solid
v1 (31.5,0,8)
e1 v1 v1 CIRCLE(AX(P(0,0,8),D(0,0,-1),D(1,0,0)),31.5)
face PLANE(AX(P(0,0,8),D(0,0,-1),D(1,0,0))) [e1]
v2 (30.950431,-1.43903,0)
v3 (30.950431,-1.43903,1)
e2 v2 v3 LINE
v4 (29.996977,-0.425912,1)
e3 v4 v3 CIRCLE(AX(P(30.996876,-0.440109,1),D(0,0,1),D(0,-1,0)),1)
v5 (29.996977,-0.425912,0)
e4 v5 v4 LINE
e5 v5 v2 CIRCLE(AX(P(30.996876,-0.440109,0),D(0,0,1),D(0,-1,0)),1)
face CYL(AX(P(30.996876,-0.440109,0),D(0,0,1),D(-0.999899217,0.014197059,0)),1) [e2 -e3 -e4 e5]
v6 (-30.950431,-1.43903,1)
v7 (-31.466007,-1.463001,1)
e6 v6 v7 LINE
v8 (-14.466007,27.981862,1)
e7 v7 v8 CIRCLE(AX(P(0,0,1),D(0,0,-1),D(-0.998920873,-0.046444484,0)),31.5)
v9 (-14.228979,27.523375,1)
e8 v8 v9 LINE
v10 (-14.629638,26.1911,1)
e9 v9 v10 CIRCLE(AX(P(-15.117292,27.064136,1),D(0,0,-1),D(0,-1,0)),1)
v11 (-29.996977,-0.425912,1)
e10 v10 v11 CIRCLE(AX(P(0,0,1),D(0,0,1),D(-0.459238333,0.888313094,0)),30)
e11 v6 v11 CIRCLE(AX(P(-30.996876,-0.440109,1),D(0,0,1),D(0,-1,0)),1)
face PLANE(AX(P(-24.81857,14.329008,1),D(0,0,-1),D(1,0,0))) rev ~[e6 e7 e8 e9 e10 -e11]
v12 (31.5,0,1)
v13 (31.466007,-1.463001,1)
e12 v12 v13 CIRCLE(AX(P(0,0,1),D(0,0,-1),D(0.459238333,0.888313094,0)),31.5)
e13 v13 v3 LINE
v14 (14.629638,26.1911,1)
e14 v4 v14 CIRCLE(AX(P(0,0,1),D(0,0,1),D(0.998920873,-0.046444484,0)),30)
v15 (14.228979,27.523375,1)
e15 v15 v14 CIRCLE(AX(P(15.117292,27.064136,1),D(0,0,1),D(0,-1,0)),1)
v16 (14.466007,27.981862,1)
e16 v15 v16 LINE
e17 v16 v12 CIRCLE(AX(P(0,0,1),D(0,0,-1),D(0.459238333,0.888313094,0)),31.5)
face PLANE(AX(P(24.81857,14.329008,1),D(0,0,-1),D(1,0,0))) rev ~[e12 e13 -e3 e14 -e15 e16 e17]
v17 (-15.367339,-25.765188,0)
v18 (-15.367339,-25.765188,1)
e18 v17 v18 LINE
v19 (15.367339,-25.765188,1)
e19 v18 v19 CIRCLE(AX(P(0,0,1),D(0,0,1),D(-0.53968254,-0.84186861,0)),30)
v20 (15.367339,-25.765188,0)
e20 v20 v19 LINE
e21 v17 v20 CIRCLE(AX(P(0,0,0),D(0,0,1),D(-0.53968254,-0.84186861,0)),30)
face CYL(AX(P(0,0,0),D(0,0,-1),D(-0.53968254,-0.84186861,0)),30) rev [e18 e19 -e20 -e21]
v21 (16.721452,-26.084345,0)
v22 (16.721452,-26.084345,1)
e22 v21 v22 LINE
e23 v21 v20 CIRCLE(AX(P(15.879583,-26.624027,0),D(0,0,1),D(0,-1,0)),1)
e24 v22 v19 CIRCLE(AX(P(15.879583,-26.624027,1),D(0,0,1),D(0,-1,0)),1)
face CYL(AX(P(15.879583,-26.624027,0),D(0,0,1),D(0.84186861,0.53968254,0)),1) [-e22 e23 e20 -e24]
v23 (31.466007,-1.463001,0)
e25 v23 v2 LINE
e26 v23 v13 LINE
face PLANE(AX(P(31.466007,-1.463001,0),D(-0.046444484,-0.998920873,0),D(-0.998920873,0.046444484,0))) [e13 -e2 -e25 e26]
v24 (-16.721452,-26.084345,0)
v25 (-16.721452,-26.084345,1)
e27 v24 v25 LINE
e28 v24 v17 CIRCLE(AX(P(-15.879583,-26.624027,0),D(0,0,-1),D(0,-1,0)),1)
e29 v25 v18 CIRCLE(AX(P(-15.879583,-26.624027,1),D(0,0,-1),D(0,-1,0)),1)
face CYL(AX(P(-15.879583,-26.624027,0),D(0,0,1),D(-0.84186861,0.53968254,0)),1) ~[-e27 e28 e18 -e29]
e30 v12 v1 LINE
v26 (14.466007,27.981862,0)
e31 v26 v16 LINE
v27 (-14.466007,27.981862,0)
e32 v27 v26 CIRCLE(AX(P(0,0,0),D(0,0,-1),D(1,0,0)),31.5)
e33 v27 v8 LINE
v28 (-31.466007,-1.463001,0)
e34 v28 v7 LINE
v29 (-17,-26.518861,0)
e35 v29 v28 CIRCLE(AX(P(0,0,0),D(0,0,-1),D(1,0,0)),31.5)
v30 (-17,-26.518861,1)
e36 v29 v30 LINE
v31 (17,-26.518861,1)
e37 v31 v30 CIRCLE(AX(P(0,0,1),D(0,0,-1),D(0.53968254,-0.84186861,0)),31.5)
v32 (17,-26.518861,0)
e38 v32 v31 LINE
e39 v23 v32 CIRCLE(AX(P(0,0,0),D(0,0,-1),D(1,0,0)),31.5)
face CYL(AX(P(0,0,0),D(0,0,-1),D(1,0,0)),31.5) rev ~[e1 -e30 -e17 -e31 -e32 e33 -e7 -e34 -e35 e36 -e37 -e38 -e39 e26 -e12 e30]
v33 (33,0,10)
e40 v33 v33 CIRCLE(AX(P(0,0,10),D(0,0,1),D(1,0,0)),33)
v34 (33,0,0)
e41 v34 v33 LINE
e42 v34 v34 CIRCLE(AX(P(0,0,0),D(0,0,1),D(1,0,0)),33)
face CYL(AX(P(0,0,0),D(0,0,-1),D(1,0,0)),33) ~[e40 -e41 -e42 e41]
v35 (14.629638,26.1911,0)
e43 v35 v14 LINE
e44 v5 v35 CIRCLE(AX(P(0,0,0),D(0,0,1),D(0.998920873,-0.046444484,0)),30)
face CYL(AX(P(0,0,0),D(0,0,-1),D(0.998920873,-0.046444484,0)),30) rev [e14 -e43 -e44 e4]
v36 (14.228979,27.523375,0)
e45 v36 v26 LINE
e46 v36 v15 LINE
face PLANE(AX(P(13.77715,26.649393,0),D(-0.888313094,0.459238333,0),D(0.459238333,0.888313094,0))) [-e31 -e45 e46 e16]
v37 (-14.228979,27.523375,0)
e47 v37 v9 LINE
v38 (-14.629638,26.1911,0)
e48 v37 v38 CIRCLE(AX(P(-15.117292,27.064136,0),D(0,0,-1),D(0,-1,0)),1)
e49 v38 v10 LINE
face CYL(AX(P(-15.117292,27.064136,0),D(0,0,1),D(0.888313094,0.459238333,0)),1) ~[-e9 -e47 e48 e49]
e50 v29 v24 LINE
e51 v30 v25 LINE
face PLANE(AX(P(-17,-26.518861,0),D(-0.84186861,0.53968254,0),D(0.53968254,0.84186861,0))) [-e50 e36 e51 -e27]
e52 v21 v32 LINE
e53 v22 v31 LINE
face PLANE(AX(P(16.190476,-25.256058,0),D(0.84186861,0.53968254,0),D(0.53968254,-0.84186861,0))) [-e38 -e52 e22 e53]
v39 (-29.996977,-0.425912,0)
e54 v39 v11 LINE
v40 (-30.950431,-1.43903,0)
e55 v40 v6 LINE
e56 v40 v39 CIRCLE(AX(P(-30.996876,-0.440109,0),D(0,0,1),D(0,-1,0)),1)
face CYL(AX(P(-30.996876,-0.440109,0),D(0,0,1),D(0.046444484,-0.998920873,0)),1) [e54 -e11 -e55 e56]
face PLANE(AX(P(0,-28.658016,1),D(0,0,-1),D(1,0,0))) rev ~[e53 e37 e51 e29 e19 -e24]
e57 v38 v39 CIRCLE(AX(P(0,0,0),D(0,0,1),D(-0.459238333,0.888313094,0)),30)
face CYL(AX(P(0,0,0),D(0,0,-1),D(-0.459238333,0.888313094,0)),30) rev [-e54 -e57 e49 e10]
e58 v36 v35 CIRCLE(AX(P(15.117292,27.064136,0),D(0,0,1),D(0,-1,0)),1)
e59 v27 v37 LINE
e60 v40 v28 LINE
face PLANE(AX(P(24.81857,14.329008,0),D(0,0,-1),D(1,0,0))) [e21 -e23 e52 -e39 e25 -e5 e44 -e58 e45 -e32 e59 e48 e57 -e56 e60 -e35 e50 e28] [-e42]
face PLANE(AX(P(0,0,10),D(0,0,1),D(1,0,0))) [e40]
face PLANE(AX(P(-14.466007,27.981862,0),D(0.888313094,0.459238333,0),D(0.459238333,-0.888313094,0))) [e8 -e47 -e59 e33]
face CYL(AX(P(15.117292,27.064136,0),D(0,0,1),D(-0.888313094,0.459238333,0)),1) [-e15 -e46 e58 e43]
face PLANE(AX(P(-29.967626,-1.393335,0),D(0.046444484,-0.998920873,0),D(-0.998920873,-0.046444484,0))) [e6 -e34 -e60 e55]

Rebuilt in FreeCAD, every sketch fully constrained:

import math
import FreeCAD as App
import Part
import Sketcher

V = App.Vector
Q = App.Units.Quantity


def edges_at(feature, points):
    """Names of the edges that pass closest to the given points."""
    edges = feature.Shape.Edges
    near = lambda p: min(range(len(edges)), key=lambda i: edges[i].distToShape(Part.Vertex(*p))[0])
    return sorted({f"Edge{near(p) + 1}" for p in points})

doc = App.newDocument("Part")
body = doc.addObject("PartDesign::Body", "Body")

# Sketch on XY plane
sketch1 = body.newObject("Sketcher::SketchObject", "Sketch")
sketch1.AttachmentSupport = (doc.getObject("XY_Plane"), [""])
sketch1.MapMode = "FlatFace"
sketch1.addGeometry(Part.Circle(V(0, 0, 0), V(0, 0, 1), 33), False)
sketch1.addConstraint(Sketcher.Constraint("Coincident", 0, 3, -1, 1))
sketch1.addConstraint(Sketcher.Constraint("Diameter", 0, Q("66 mm")))
pad1 = body.newObject("PartDesign::Pad", "Pad")
pad1.Profile = sketch1
pad1.Length = 10

# Sketch on XY plane
sketch2 = body.newObject("Sketcher::SketchObject", "Sketch001")
sketch2.AttachmentSupport = (doc.getObject("XY_Plane"), [""])
sketch2.MapMode = "FlatFace"
sketch2.addGeometry(Part.Circle(V(0, 0, 0), V(0, 0, 1), 31.5), False)
sketch2.addConstraint(Sketcher.Constraint("Coincident", 0, 3, -1, 1))
sketch2.addConstraint(Sketcher.Constraint("Diameter", 0, Q("63 mm")))
pocket1 = body.newObject("PartDesign::Pocket", "Pocket")
pocket1.Profile = sketch2
pocket1.Length = 8
pocket1.Reversed = True

# Sketch on XY plane
sketch3 = body.newObject("Sketcher::SketchObject", "Sketch002")
sketch3.AttachmentSupport = (doc.getObject("XY_Plane"), [""])
sketch3.MapMode = "FlatFace"
sketch3.addGeometry(Part.LineSegment(V(16.190476, -25.256058, 0), V(17, -26.518861, 0)), False)
sketch3.addGeometry(Part.ArcOfCircle(Part.Circle(V(0, 0, 0), V(0, 0, 1), 31.5), math.radians(-122.662031), math.radians(-57.337969)), False)
sketch3.addGeometry(Part.LineSegment(V(-17, -26.518861, 0), V(-16.190476, -25.256058, 0)), False)
sketch3.addGeometry(Part.ArcOfCircle(Part.Circle(V(0, 0, 0), V(0, 0, 1), 30), math.radians(-122.662031), math.radians(-57.337969)), False)
sketch3.addGeometry(Part.LineSegment(V(-29.967626, -1.393335, 0), V(-31.466007, -1.463001, 0)), False)
sketch3.addGeometry(Part.ArcOfCircle(Part.Circle(V(0, 0, 0), V(0, 0, 1), 31.5), math.radians(117.337969), math.radians(182.662031)), False)
sketch3.addGeometry(Part.LineSegment(V(-14.466007, 27.981862, 0), V(-13.77715, 26.649393, 0)), False)
sketch3.addGeometry(Part.ArcOfCircle(Part.Circle(V(0, 0, 0), V(0, 0, 1), 30), math.radians(117.337969), math.radians(182.662031)), False)
sketch3.addGeometry(Part.LineSegment(V(13.77715, 26.649393, 0), V(14.466007, 27.981862, 0)), False)
sketch3.addGeometry(Part.ArcOfCircle(Part.Circle(V(0, 0, 0), V(0, 0, 1), 31.5), math.radians(-2.662031), math.radians(62.662031)), False)
sketch3.addGeometry(Part.LineSegment(V(31.466007, -1.463001, 0), V(29.967626, -1.393335, 0)), False)
sketch3.addGeometry(Part.ArcOfCircle(Part.Circle(V(0, 0, 0), V(0, 0, 1), 30), math.radians(-2.662031), math.radians(62.662031)), False)
sketch3.addConstraint(Sketcher.Constraint("Coincident", 0, 2, 1, 2))
sketch3.addConstraint(Sketcher.Constraint("Coincident", 1, 1, 2, 1))
sketch3.addConstraint(Sketcher.Constraint("Coincident", 2, 2, 3, 1))
sketch3.addConstraint(Sketcher.Constraint("Coincident", 3, 2, 0, 1))
sketch3.addConstraint(Sketcher.Constraint("Coincident", 4, 2, 5, 2))
sketch3.addConstraint(Sketcher.Constraint("Coincident", 5, 1, 6, 1))
sketch3.addConstraint(Sketcher.Constraint("Coincident", 6, 2, 7, 1))
sketch3.addConstraint(Sketcher.Constraint("Coincident", 7, 2, 4, 1))
sketch3.addConstraint(Sketcher.Constraint("Coincident", 8, 2, 9, 2))
sketch3.addConstraint(Sketcher.Constraint("Coincident", 9, 1, 10, 1))
sketch3.addConstraint(Sketcher.Constraint("Coincident", 10, 2, 11, 1))
sketch3.addConstraint(Sketcher.Constraint("Coincident", 11, 2, 8, 1))
sketch3.addConstraint(Sketcher.Constraint("Coincident", 1, 3, -1, 1))
sketch3.addConstraint(Sketcher.Constraint("Coincident", 3, 3, -1, 1))
sketch3.addConstraint(Sketcher.Constraint("Coincident", 5, 3, -1, 1))
sketch3.addConstraint(Sketcher.Constraint("Coincident", 7, 3, -1, 1))
sketch3.addConstraint(Sketcher.Constraint("Coincident", 9, 3, -1, 1))
sketch3.addConstraint(Sketcher.Constraint("Coincident", 11, 3, -1, 1))
sketch3.addConstraint(Sketcher.Constraint("Equal", 1, 5))
sketch3.addConstraint(Sketcher.Constraint("Equal", 3, 7))
sketch3.addConstraint(Sketcher.Constraint("Equal", 5, 9))
sketch3.addConstraint(Sketcher.Constraint("Equal", 7, 11))
sketch3.addConstraint(Sketcher.Constraint("Horizontal", 0, 2, 1, 1))
sketch3.addConstraint(Sketcher.Constraint("Horizontal", 2, 2, 3, 2))
sketch3.addConstraint(Sketcher.Constraint("Horizontal", 5, 1, 8, 2))
sketch3.addConstraint(Sketcher.Constraint("Horizontal", 4, 2, 9, 1))
sketch3.addConstraint(Sketcher.Constraint("Horizontal", 7, 2, 10, 2))
sketch3.addConstraint(Sketcher.Constraint("Horizontal", 6, 2, 11, 2))
sketch3.addConstraint(Sketcher.Constraint("Radius", 3, Q("30 mm")))
sketch3.addConstraint(Sketcher.Constraint("Radius", 1, Q("31.5 mm")))
sketch3.addConstraint(Sketcher.Constraint("DistanceX", -1, 1, 0, 2, Q("17 mm")))
sketch3.addConstraint(Sketcher.Constraint("DistanceY", 4, 2, -1, 1, Q("1.463001 mm")))
sketch3.addConstraint(Sketcher.Constraint("DistanceX", 6, 2, 11, 2, Q("27.5543 mm")))
sketch3.addConstraint(Sketcher.Constraint("DistanceY", 2, 2, -1, 1, Q("25.256058 mm")))
sketch3.addConstraint(Sketcher.Constraint("DistanceY", 6, 2, 5, 1, Q("1.33247 mm")))
sketch3.addConstraint(Sketcher.Constraint("DistanceX", 4, 2, 7, 2, Q("1.498381 mm")))
pad2 = body.newObject("PartDesign::Pad", "Pad001")
pad2.Profile = sketch3
pad2.Length = 1
doc.recompute()

fillet = body.newObject("PartDesign::Fillet", "Fillet")
fillet.Base = (pad2, edges_at(pad2, [
    (29.968, -1.393, 0.5),
    (13.777, 26.649, 0.5),
    (16.19, -25.256, 0.5),
    (-13.777, 26.649, 0.5),
    (-29.968, -1.393, 0.5),
    (-16.19, -25.256, 0.5),
]))
fillet.Radius = 1

doc.recompute()
